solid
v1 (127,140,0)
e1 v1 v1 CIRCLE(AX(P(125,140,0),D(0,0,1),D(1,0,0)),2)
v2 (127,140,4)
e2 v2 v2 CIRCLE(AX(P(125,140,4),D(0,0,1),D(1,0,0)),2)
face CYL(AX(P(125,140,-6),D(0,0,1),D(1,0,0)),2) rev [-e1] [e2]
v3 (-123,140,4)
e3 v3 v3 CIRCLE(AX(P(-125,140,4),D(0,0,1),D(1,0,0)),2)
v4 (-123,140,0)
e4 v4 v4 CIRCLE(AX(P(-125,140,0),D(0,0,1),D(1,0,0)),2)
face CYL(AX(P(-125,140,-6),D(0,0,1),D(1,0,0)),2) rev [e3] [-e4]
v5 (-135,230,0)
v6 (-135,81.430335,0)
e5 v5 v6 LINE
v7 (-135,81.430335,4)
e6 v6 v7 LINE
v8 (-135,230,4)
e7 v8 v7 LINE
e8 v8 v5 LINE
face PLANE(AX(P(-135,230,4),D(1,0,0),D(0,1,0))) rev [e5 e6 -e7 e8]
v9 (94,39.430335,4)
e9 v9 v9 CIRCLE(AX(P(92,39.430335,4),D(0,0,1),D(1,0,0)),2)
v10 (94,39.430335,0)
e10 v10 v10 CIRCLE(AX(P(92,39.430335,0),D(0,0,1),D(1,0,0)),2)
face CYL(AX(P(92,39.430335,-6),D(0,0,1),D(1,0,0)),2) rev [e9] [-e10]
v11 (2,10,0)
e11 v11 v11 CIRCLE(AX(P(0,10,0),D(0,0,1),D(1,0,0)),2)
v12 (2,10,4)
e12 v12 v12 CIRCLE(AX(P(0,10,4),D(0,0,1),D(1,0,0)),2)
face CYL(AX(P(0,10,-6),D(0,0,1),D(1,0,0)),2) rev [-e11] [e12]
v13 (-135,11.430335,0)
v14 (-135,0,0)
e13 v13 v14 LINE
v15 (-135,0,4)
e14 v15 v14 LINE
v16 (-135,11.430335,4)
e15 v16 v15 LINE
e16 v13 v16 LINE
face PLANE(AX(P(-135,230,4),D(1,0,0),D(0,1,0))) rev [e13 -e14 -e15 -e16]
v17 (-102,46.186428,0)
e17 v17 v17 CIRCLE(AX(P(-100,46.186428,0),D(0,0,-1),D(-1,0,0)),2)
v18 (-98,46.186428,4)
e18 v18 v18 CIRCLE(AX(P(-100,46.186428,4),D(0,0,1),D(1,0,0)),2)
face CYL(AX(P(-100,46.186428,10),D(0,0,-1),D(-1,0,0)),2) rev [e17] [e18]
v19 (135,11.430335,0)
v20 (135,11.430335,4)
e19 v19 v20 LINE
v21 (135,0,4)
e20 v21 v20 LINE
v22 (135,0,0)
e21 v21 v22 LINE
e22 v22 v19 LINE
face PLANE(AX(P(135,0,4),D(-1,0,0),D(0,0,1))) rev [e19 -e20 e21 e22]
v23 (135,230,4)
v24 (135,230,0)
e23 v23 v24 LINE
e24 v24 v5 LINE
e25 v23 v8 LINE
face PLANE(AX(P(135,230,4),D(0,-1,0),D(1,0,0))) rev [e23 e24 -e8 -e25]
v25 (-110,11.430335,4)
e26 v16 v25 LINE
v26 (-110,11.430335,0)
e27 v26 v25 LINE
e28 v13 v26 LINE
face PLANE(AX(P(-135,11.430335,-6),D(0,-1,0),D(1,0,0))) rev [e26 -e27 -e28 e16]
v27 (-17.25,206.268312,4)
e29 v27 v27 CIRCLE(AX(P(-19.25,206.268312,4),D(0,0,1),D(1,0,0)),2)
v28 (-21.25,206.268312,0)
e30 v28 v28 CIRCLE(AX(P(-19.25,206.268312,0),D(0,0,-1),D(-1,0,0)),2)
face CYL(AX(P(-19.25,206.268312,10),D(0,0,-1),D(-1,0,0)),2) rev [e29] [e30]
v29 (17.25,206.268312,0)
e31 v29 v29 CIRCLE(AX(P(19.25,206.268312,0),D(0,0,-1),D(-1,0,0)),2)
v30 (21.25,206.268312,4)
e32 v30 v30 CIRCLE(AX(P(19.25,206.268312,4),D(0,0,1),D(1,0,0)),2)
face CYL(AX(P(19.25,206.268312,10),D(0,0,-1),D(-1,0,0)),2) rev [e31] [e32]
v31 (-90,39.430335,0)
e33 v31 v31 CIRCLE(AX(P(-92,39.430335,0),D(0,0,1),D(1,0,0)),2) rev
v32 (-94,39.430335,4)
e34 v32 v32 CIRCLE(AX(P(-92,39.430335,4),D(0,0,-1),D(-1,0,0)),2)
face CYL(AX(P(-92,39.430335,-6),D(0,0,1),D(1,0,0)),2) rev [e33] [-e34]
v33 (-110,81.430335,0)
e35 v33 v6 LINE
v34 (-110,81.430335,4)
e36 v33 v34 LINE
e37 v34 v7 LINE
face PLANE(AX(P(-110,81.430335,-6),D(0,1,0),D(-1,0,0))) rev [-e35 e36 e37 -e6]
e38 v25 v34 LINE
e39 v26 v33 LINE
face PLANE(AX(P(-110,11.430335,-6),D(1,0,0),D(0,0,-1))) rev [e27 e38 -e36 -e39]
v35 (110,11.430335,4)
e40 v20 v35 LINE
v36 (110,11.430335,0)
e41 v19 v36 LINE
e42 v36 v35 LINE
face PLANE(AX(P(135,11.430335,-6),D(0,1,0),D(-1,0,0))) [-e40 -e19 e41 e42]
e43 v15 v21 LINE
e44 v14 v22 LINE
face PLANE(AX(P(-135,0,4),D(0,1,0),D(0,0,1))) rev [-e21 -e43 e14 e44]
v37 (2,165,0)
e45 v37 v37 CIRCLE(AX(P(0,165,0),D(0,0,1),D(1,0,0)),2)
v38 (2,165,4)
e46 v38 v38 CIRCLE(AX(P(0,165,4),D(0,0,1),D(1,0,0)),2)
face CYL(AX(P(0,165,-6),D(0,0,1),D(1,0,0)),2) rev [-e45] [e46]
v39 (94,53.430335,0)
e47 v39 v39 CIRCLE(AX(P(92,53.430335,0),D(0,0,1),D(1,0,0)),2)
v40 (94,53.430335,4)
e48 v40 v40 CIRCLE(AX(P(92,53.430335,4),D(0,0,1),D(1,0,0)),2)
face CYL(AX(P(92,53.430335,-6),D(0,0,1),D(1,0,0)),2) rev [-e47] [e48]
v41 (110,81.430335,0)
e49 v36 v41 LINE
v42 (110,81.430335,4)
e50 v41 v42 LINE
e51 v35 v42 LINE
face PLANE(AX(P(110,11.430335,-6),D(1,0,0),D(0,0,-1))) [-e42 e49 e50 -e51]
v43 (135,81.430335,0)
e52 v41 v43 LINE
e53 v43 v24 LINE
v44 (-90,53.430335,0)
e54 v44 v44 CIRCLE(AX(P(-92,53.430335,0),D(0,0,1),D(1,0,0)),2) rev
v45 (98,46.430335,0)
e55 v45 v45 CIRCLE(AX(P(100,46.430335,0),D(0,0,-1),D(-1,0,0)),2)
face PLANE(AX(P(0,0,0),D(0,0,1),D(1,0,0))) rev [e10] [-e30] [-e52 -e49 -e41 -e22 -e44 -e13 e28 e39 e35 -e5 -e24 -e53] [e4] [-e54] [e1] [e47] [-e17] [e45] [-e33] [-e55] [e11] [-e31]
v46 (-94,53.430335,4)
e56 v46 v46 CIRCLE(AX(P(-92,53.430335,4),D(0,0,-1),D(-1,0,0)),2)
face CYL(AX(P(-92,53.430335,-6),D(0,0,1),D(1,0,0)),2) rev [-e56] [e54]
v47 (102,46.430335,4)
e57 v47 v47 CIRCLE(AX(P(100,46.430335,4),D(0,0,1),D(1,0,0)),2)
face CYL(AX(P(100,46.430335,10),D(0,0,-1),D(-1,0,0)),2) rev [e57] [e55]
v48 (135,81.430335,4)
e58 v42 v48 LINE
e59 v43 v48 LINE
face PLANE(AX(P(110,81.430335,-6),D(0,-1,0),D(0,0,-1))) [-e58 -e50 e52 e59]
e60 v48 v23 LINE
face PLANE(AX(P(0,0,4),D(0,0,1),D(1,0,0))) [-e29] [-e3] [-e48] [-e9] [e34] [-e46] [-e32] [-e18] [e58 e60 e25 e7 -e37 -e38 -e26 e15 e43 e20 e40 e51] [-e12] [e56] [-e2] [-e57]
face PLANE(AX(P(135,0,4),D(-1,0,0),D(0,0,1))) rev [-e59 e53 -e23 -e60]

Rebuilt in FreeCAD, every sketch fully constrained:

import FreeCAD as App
import Part
import Sketcher
from FreeCAD import Vector

doc = App.newDocument("Part")
body = doc.addObject("PartDesign::Body", "Body")

# Sketch on XY plane
sketch1 = doc.addObject("Sketcher::SketchObject", "Sketch")
body.addObject(sketch1)
sketch1.AttachmentSupport = (doc.XY_Plane, [""])
sketch1.MapMode = "FlatFace"
sketch1.addGeometry(Part.LineSegment(Vector(-135, 230, 0), Vector(-135, 0, 0)), False)
sketch1.addGeometry(Part.LineSegment(Vector(-135, 0, 0), Vector(135, 0, 0)), False)
sketch1.addGeometry(Part.LineSegment(Vector(135, 0, 0), Vector(135, 230, 0)), False)
sketch1.addGeometry(Part.LineSegment(Vector(135, 230, 0), Vector(-135, 230, 0)), False)
sketch1.addConstraint(Sketcher.Constraint("Coincident", 0, 2, 1, 1))
sketch1.addConstraint(Sketcher.Constraint("Coincident", 1, 2, 2, 1))
sketch1.addConstraint(Sketcher.Constraint("Coincident", 2, 2, 3, 1))
sketch1.addConstraint(Sketcher.Constraint("Coincident", 3, 2, 0, 1))
sketch1.addConstraint(Sketcher.Constraint("Vertical", 0))
sketch1.addConstraint(Sketcher.Constraint("Horizontal", 1))
sketch1.addConstraint(Sketcher.Constraint("Vertical", 2))
sketch1.addConstraint(Sketcher.Constraint("Horizontal", 3))
sketch1.addConstraint(Sketcher.Constraint("Symmetric", 0, 2, 1, 2, -1, 1))
sketch1.addConstraint(Sketcher.Constraint("DistanceX", 1, 1, 1, 2, 270.0))
sketch1.addConstraint(Sketcher.Constraint("DistanceY", 0, 2, 0, 1, 230.0))
pad1 = doc.addObject("PartDesign::Pad", "Pad")
body.addObject(pad1)
pad1.Profile = sketch1
pad1.Length = 4

# Sketch on XY plane
sketch2 = doc.addObject("Sketcher::SketchObject", "Sketch001")
body.addObject(sketch2)
sketch2.AttachmentSupport = (doc.XY_Plane, [""])
sketch2.MapMode = "FlatFace"
sketch2.AttachmentOffset = App.Placement(Vector(0, 0, 4), App.Rotation())
sketch2.addGeometry(Part.LineSegment(Vector(-135, 81, 0), Vector(-135, 11, 0)), False)
sketch2.addGeometry(Part.LineSegment(Vector(-135, 11, 0), Vector(-110, 11, 0)), False)
sketch2.addGeometry(Part.LineSegment(Vector(-110, 11, 0), Vector(-110, 81, 0)), False)
sketch2.addGeometry(Part.LineSegment(Vector(-110, 81, 0), Vector(-135, 81, 0)), False)
sketch2.addConstraint(Sketcher.Constraint("Coincident", 0, 2, 1, 1))
sketch2.addConstraint(Sketcher.Constraint("Coincident", 1, 2, 2, 1))
sketch2.addConstraint(Sketcher.Constraint("Coincident", 2, 2, 3, 1))
sketch2.addConstraint(Sketcher.Constraint("Coincident", 3, 2, 0, 1))
sketch2.addConstraint(Sketcher.Constraint("Vertical", 0))
sketch2.addConstraint(Sketcher.Constraint("Horizontal", 1))
sketch2.addConstraint(Sketcher.Constraint("Vertical", 2))
sketch2.addConstraint(Sketcher.Constraint("Horizontal", 3))
sketch2.addConstraint(Sketcher.Constraint("DistanceX", 1, 1, 1, 2, 25.0))
sketch2.addConstraint(Sketcher.Constraint("DistanceY", 0, 2, 0, 1, 70.0))
sketch2.addConstraint(Sketcher.Constraint("DistanceX", 0, 2, -1, 1, 135.0))
sketch2.addConstraint(Sketcher.Constraint("DistanceY", -1, 1, 0, 2, 11.430335))
pocket1 = doc.addObject("PartDesign::Pocket", "Pocket")
body.addObject(pocket1)
pocket1.Profile = sketch2
pocket1.Length = 10

# Sketch on XY plane
sketch3 = doc.addObject("Sketcher::SketchObject", "Sketch002")
body.addObject(sketch3)
sketch3.AttachmentSupport = (doc.XY_Plane, [""])
sketch3.MapMode = "FlatFace"
sketch3.AttachmentOffset = App.Placement(Vector(0, 0, 4), App.Rotation())
sketch3.addGeometry(Part.LineSegment(Vector(110, 81, 0), Vector(110, 11, 0)), False)
sketch3.addGeometry(Part.LineSegment(Vector(110, 11, 0), Vector(135, 11, 0)), False)
sketch3.addGeometry(Part.LineSegment(Vector(135, 11, 0), Vector(135, 81, 0)), False)
sketch3.addGeometry(Part.LineSegment(Vector(135, 81, 0), Vector(110, 81, 0)), False)
sketch3.addConstraint(Sketcher.Constraint("Coincident", 0, 2, 1, 1))
sketch3.addConstraint(Sketcher.Constraint("Coincident", 1, 2, 2, 1))
sketch3.addConstraint(Sketcher.Constraint("Coincident", 2, 2, 3, 1))
sketch3.addConstraint(Sketcher.Constraint("Coincident", 3, 2, 0, 1))
sketch3.addConstraint(Sketcher.Constraint("Vertical", 0))
sketch3.addConstraint(Sketcher.Constraint("Horizontal", 1))
sketch3.addConstraint(Sketcher.Constraint("Vertical", 2))
sketch3.addConstraint(Sketcher.Constraint("Horizontal", 3))
sketch3.addConstraint(Sketcher.Constraint("DistanceX", 1, 1, 1, 2, 25.0))
sketch3.addConstraint(Sketcher.Constraint("DistanceY", 0, 2, 0, 1, 70.0))
sketch3.addConstraint(Sketcher.Constraint("DistanceX", -1, 1, 0, 2, 110.0))
sketch3.addConstraint(Sketcher.Constraint("DistanceY", -1, 1, 0, 2, 11.430335))
pocket2 = doc.addObject("PartDesign::Pocket", "Pocket001")
body.addObject(pocket2)
pocket2.Profile = sketch3
pocket2.Length = 10

# Sketch on XY plane
sketch4 = doc.addObject("Sketcher::SketchObject", "Sketch003")
body.addObject(sketch4)
sketch4.AttachmentSupport = (doc.XY_Plane, [""])
sketch4.MapMode = "FlatFace"
sketch4.addGeometry(Part.Circle(Vector(100, 46.4, 0), Vector(0, 0, 1), 2), False)
sketch4.addGeometry(Part.Circle(Vector(-100, 46.2, 0), Vector(0, 0, 1), 2), False)
sketch4.addConstraint(Sketcher.Constraint("Equal", 0, 1))
sketch4.addConstraint(Sketcher.Constraint("Diameter", 0, 4.0))
sketch4.addConstraint(Sketcher.Constraint("DistanceX", -1, 1, 0, 3, 100.0))
sketch4.addConstraint(Sketcher.Constraint("DistanceX", 1, 3, -1, 1, 100.0))
sketch4.addConstraint(Sketcher.Constraint("DistanceY", -1, 1, 1, 3, 46.186428))
sketch4.addConstraint(Sketcher.Constraint("DistanceY", -1, 1, 0, 3, 46.430335))
pocket3 = doc.addObject("PartDesign::Pocket", "Pocket002")
body.addObject(pocket3)
pocket3.Profile = sketch4
pocket3.Length = 10
pocket3.Reversed = True

# Sketch on XY plane
sketch5 = doc.addObject("Sketcher::SketchObject", "Sketch004")
body.addObject(sketch5)
sketch5.AttachmentSupport = (doc.XY_Plane, [""])
sketch5.MapMode = "FlatFace"
sketch5.addGeometry(Part.Circle(Vector(19.2, 206.3, 0), Vector(0, 0, 1), 2), False)
sketch5.addGeometry(Part.Circle(Vector(-19.2, 206.3, 0), Vector(0, 0, 1), 2), False)
sketch5.addConstraint(Sketcher.Constraint("Equal", 0, 1))
sketch5.addConstraint(Sketcher.Constraint("Symmetric", 0, 3, 1, 3, -2))
sketch5.addConstraint(Sketcher.Constraint("Diameter", 0, 4.0))
sketch5.addConstraint(Sketcher.Constraint("DistanceX", 1, 3, 0, 3, 38.5))
sketch5.addConstraint(Sketcher.Constraint("DistanceY", -1, 1, 0, 3, 206.268312))
pocket4 = doc.addObject("PartDesign::Pocket", "Pocket003")
body.addObject(pocket4)
pocket4.Profile = sketch5
pocket4.Length = 10
pocket4.Reversed = True

# Sketch on XY plane
sketch6 = doc.addObject("Sketcher::SketchObject", "Sketch005")
body.addObject(sketch6)
sketch6.AttachmentSupport = (doc.XY_Plane, [""])
sketch6.MapMode = "FlatFace"
sketch6.AttachmentOffset = App.Placement(Vector(0, 0, 4), App.Rotation())
sketch6.addGeometry(Part.Circle(Vector(-125, 140, 0), Vector(0, 0, 1), 2), False)
sketch6.addGeometry(Part.Circle(Vector(125, 140, 0), Vector(0, 0, 1), 2), False)
sketch6.addGeometry(Part.Circle(Vector(0, 10, 0), Vector(0, 0, 1), 2), False)
sketch6.addConstraint(Sketcher.Constraint("Equal", 0, 1))
sketch6.addConstraint(Sketcher.Constraint("Equal", 1, 2))
sketch6.addConstraint(Sketcher.Constraint("Symmetric", 0, 3, 1, 3, -2))
sketch6.addConstraint(Sketcher.Constraint("PointOnObject", 2, 3, -2))
sketch6.addConstraint(Sketcher.Constraint("Diameter", 0, 4.0))
sketch6.addConstraint(Sketcher.Constraint("DistanceX", 0, 3, -1, 1, 125.0))
sketch6.addConstraint(Sketcher.Constraint("DistanceY", -1, 1, 0, 3, 140.0))
sketch6.addConstraint(Sketcher.Constraint("DistanceY", -1, 1, 2, 3, 10.0))
pocket5 = doc.addObject("PartDesign::Pocket", "Pocket004")
body.addObject(pocket5)
pocket5.Profile = sketch6
pocket5.Length = 10

# Sketch on XY plane
sketch7 = doc.addObject("Sketcher::SketchObject", "Sketch006")
body.addObject(sketch7)
sketch7.AttachmentSupport = (doc.XY_Plane, [""])
sketch7.MapMode = "FlatFace"
sketch7.AttachmentOffset = App.Placement(Vector(0, 0, 4), App.Rotation())
sketch7.addGeometry(Part.Circle(Vector(0, 165, 0), Vector(0, 0, 1), 2), False)
sketch7.addConstraint(Sketcher.Constraint("PointOnObject", 0, 3, -2))
sketch7.addConstraint(Sketcher.Constraint("Diameter", 0, 4.0))
sketch7.addConstraint(Sketcher.Constraint("DistanceY", -1, 1, 0, 3, 165.0))
pocket6 = doc.addObject("PartDesign::Pocket", "Pocket005")
body.addObject(pocket6)
pocket6.Profile = sketch7
pocket6.Length = 10

# Sketch on XY plane
sketch8 = doc.addObject("Sketcher::SketchObject", "Sketch007")
body.addObject(sketch8)
sketch8.AttachmentSupport = (doc.XY_Plane, [""])
sketch8.MapMode = "FlatFace"
sketch8.AttachmentOffset = App.Placement(Vector(0, 0, 4), App.Rotation())
sketch8.addGeometry(Part.Circle(Vector(92, 53.4, 0), Vector(0, 0, 1), 2), False)
sketch8.addGeometry(Part.Circle(Vector(92, 39.4, 0), Vector(0, 0, 1), 2), False)
sketch8.addConstraint(Sketcher.Constraint("Equal", 0, 1))
sketch8.addConstraint(Sketcher.Constraint("Vertical", 0, 3, 1, 3))
sketch8.addConstraint(Sketcher.Constraint("Diameter", 0, 4.0))
sketch8.addConstraint(Sketcher.Constraint("DistanceX", -1, 1, 0, 3, 92.0))
sketch8.addConstraint(Sketcher.Constraint("DistanceY", 1, 3, 0, 3, 14.0))
sketch8.addConstraint(Sketcher.Constraint("DistanceY", -1, 1, 0, 3, 53.430335))
pocket7 = doc.addObject("PartDesign::Pocket", "Pocket006")
body.addObject(pocket7)
pocket7.Profile = sketch8
pocket7.Length = 10
doc.recompute()

mirrored = doc.addObject("PartDesign::Mirrored", "Mirrored")
body.addObject(mirrored)
mirrored.Originals = [pocket7]
mirrored.MirrorPlane = (doc.YZ_Plane, [""])
body.Tip = mirrored

doc.recompute()
